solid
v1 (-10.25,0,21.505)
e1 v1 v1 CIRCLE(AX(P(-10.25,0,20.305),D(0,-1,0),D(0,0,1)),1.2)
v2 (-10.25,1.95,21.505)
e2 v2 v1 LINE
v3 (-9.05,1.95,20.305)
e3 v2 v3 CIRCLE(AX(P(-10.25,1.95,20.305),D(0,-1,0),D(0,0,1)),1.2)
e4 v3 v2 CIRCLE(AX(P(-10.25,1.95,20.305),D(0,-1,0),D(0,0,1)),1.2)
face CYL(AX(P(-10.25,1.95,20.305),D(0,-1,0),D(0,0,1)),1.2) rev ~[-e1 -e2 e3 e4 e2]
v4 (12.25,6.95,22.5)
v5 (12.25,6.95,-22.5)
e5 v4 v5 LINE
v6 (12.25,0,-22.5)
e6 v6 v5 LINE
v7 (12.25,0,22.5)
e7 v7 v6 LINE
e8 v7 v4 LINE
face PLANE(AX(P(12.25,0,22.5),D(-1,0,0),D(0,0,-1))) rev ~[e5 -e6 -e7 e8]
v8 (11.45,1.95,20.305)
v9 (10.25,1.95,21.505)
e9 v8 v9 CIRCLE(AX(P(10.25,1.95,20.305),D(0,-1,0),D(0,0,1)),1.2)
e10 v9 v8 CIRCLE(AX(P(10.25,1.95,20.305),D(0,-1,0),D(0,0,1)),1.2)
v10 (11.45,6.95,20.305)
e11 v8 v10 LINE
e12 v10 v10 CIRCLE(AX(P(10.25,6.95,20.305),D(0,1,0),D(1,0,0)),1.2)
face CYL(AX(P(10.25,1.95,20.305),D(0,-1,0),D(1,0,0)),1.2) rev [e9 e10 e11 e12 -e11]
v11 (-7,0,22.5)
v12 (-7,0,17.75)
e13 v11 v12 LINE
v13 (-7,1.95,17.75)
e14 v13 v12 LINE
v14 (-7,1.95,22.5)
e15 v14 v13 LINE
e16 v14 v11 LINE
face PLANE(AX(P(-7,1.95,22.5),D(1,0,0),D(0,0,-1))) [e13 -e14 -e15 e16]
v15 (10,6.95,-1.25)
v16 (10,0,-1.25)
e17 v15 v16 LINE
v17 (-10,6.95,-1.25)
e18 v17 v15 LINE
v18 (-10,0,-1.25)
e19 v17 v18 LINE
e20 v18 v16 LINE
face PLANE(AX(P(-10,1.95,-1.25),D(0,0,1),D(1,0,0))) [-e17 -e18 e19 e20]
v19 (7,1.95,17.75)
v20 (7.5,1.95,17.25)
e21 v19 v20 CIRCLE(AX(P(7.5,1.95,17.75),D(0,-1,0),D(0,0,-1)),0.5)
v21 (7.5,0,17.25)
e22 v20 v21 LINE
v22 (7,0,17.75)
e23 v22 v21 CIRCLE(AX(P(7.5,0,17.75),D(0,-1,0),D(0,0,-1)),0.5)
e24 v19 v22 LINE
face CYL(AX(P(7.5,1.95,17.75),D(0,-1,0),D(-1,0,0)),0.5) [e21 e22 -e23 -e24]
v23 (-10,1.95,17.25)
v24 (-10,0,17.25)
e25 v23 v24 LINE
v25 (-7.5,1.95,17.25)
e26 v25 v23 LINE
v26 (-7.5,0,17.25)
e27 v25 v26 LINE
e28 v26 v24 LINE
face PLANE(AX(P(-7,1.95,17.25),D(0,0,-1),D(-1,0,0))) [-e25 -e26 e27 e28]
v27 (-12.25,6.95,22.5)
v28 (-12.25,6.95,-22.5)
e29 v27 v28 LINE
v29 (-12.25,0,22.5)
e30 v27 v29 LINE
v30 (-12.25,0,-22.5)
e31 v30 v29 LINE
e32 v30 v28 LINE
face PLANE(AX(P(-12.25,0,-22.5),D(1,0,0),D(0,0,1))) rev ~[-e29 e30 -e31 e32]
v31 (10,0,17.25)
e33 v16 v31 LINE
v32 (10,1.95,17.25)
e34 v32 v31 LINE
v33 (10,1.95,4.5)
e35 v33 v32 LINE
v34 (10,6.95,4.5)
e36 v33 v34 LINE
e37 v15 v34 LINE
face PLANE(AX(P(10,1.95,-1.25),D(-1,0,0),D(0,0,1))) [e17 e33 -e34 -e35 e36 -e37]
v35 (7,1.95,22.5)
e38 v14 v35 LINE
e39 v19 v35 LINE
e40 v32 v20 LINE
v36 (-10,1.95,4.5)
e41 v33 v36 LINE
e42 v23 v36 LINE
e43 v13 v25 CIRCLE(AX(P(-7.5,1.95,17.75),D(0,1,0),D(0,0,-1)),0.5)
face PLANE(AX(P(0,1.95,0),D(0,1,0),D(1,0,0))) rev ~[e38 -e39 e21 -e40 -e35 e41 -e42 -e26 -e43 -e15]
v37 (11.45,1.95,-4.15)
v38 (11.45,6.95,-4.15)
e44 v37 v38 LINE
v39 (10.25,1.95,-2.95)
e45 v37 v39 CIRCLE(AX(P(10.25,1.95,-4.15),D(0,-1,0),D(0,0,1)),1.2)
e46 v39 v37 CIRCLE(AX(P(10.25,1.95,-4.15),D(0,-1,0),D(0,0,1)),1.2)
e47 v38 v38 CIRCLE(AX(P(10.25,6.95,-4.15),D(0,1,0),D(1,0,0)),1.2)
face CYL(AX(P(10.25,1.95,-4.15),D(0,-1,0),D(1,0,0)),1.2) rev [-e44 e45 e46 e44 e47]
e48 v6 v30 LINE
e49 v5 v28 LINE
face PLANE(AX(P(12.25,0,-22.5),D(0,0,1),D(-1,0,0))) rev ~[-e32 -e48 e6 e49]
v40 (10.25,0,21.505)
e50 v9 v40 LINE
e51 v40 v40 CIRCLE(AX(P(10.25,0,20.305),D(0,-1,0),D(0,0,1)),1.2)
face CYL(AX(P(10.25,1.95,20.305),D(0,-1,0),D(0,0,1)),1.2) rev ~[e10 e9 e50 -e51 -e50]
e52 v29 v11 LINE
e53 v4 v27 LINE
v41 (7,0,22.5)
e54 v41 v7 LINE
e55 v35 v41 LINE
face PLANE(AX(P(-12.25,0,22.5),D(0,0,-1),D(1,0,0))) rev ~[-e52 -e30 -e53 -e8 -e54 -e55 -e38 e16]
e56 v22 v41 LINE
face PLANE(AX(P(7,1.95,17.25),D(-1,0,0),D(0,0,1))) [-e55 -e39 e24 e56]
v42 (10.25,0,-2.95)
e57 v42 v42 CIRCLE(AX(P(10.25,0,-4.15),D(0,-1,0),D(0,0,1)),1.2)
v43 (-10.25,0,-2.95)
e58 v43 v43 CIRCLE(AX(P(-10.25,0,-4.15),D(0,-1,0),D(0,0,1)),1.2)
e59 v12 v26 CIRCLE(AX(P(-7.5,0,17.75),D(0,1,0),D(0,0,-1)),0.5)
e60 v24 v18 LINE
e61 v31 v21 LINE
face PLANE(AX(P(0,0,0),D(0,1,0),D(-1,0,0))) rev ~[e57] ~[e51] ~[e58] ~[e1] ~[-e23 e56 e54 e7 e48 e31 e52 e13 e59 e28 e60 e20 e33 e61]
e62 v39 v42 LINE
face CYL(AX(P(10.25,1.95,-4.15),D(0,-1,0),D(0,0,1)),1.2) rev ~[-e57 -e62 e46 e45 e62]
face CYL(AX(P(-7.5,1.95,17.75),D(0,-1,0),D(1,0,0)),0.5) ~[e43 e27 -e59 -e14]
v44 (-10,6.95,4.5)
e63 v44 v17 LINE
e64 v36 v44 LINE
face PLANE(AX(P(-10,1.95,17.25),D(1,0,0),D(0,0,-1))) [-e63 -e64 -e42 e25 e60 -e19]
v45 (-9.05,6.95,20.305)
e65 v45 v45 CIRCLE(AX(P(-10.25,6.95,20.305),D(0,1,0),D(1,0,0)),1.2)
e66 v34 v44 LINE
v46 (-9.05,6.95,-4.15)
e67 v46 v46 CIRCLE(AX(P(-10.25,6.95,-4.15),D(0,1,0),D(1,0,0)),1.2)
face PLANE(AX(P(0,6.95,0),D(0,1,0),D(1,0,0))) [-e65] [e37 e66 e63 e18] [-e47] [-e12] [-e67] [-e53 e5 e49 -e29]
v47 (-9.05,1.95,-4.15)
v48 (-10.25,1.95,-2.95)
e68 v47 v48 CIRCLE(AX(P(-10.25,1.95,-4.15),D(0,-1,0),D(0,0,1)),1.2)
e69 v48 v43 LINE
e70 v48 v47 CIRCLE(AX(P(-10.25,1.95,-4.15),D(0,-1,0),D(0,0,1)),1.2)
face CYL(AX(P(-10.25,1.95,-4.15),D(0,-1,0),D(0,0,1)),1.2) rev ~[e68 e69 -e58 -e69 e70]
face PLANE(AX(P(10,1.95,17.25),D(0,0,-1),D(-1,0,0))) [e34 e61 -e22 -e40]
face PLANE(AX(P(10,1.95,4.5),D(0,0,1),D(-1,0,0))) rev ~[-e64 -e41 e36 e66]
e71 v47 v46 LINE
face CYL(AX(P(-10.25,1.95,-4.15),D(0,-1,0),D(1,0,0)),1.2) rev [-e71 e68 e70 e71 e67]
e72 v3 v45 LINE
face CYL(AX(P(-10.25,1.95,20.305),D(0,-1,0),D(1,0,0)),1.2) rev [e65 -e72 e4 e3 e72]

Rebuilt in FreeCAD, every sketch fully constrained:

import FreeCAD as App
import Part
import Sketcher
from FreeCAD import Vector
Q = App.Units.Quantity


def edges_at(feature, points):
    """Names of the edges that pass closest to the given points."""
    edges = feature.Shape.Edges
    near = lambda p: min(range(len(edges)), key=lambda i: edges[i].distToShape(Part.Vertex(*p))[0])
    return sorted({f"Edge{near(p) + 1}" for p in points})


def add_polygon(sketch, points):
    """Adds a closed chain of lines whose ends are joined by coincident constraints."""
    first, n = sketch.GeometryCount, len(points)
    for a, b in zip(points, points[1:] + points[:1]):
        sketch.addGeometry(Part.LineSegment(App.Vector(*a, 0), App.Vector(*b, 0)), False)
    for i in range(n):
        sketch.addConstraint(Sketcher.Constraint("Coincident", first + i, 2, first + (i + 1) % n, 1))

doc = App.newDocument("Part")
body = doc.addObject("PartDesign::Body", "Body")

# Sketch on XZ plane
sketch1 = body.newObject("Sketcher::SketchObject", "Sketch")
sketch1.AttachmentSupport = (doc.getObject("XZ_Plane"), [""])
sketch1.MapMode = "FlatFace"
add_polygon(sketch1, [(-12.25, -22.5), (-12.25, 22.5), (12.25, 22.5), (12.25, -22.5)])  # lines 0-3
sketch1.addConstraint(Sketcher.Constraint("Vertical", 0))
sketch1.addConstraint(Sketcher.Constraint("Horizontal", 1))
sketch1.addConstraint(Sketcher.Constraint("Vertical", 2))
sketch1.addConstraint(Sketcher.Constraint("Horizontal", 3))
sketch1.addConstraint(Sketcher.Constraint("Symmetric", 0, 2, 2, 2, -1, 1))
sketch1.addConstraint(Sketcher.Constraint("DistanceY", 0, 1, 0, 2, Q("45 mm")))
sketch1.addConstraint(Sketcher.Constraint("DistanceX", 1, 1, 1, 2, Q("24.5 mm")))
pad1 = body.newObject("PartDesign::Pad", "Pad")
pad1.Profile = sketch1
pad1.Length = 1.95
pad1.Reversed = True

# Sketch on XZ plane
sketch2 = body.newObject("Sketcher::SketchObject", "Sketch001")
sketch2.AttachmentSupport = (doc.getObject("XZ_Plane"), [""])
sketch2.MapMode = "FlatFace"
sketch2.AttachmentOffset = App.Placement(Vector(0, 0, -1.95), App.Rotation())
add_polygon(sketch2, [(10, -1.25), (-10, -1.25), (-10, 17.25), (-7, 17.25), (-7, 22.5), (7, 22.5), (7, 17.25), (10, 17.25)])  # lines 0-7
sketch2.addConstraint(Sketcher.Constraint("Horizontal", 0))
sketch2.addConstraint(Sketcher.Constraint("Vertical", 1))
sketch2.addConstraint(Sketcher.Constraint("Horizontal", 2))
sketch2.addConstraint(Sketcher.Constraint("Vertical", 3))
sketch2.addConstraint(Sketcher.Constraint("Horizontal", 4))
sketch2.addConstraint(Sketcher.Constraint("Vertical", 5))
sketch2.addConstraint(Sketcher.Constraint("Horizontal", 6))
sketch2.addConstraint(Sketcher.Constraint("Vertical", 7))
sketch2.addConstraint(Sketcher.Constraint("Symmetric", 2, 2, 5, 2, -2))
sketch2.addConstraint(Sketcher.Constraint("Equal", 2, 6))
sketch2.addConstraint(Sketcher.Constraint("DistanceX", 0, 2, 0, 1, Q("20 mm")))
sketch2.addConstraint(Sketcher.Constraint("DistanceX", 4, 1, 4, 2, Q("14 mm")))
sketch2.addConstraint(Sketcher.Constraint("DistanceY", 1, 1, 1, 2, Q("18.5 mm")))
sketch2.addConstraint(Sketcher.Constraint("DistanceY", 3, 1, 3, 2, Q("5.25 mm")))
sketch2.addConstraint(Sketcher.Constraint("DistanceY", -1, 1, 3, 2, Q("22.5 mm")))
pocket1 = body.newObject("PartDesign::Pocket", "Pocket")
pocket1.Profile = sketch2
pocket1.Length = 1.95
pocket1.Reversed = True

# Sketch on XZ plane
sketch3 = body.newObject("Sketcher::SketchObject", "Sketch002")
sketch3.AttachmentSupport = (doc.getObject("XZ_Plane"), [""])
sketch3.MapMode = "FlatFace"
sketch3.AttachmentOffset = App.Placement(Vector(0, 0, -1.95), App.Rotation())
sketch3.addGeometry(Part.Circle(Vector(-10.25, 20.305, 0), Vector(0, 0, 1), 1.2), False)
sketch3.addGeometry(Part.Circle(Vector(10.25, 20.305, 0), Vector(0, 0, 1), 1.2), False)
sketch3.addConstraint(Sketcher.Constraint("Equal", 0, 1))
sketch3.addConstraint(Sketcher.Constraint("Symmetric", 0, 3, 1, 3, -2))
sketch3.addConstraint(Sketcher.Constraint("Diameter", 0, Q("2.4 mm")))
sketch3.addConstraint(Sketcher.Constraint("DistanceX", 0, 3, 1, 3, Q("20.5 mm")))
sketch3.addConstraint(Sketcher.Constraint("DistanceY", -1, 1, 0, 3, Q("20.305 mm")))
doc.recompute()
hole = body.newObject("PartDesign::Hole", "Hole")
hole.Profile = sketch3
hole.ThreadType = "None"
hole.Diameter = 2.4
hole.DepthType = "ThroughAll"
hole.Reversed = True

# Sketch on XZ plane
sketch4 = body.newObject("Sketcher::SketchObject", "Sketch003")
sketch4.AttachmentSupport = (doc.getObject("XZ_Plane"), [""])
sketch4.MapMode = "FlatFace"
sketch4.AttachmentOffset = App.Placement(Vector(0, 0, -1.95), App.Rotation())
sketch4.addGeometry(Part.Circle(Vector(-10.25, -4.15, 0), Vector(0, 0, 1), 1.2), False)
sketch4.addGeometry(Part.Circle(Vector(10.25, -4.15, 0), Vector(0, 0, 1), 1.2), False)
sketch4.addConstraint(Sketcher.Constraint("Equal", 0, 1))
sketch4.addConstraint(Sketcher.Constraint("Symmetric", 0, 3, 1, 3, -2))
sketch4.addConstraint(Sketcher.Constraint("Diameter", 0, Q("2.4 mm")))
sketch4.addConstraint(Sketcher.Constraint("DistanceX", 0, 3, 1, 3, Q("20.5 mm")))
sketch4.addConstraint(Sketcher.Constraint("DistanceY", 0, 3, -1, 1, Q("4.15 mm")))
doc.recompute()
hole2 = body.newObject("PartDesign::Hole", "Hole001")
hole2.Profile = sketch4
hole2.ThreadType = "None"
hole2.Diameter = 2.4
hole2.DepthType = "ThroughAll"
hole2.Reversed = True
doc.recompute()

fillet = body.newObject("PartDesign::Fillet", "Fillet")
fillet.Base = (hole2, edges_at(hole2, [(7, 0.975, 17.25), (-7, 0.975, 17.25)]))
fillet.Radius = 0.5

# Sketch on XZ plane
sketch5 = body.newObject("Sketcher::SketchObject", "Sketch004")
sketch5.AttachmentSupport = (doc.getObject("XZ_Plane"), [""])
sketch5.MapMode = "FlatFace"
sketch5.AttachmentOffset = App.Placement(Vector(0, 0, -1.95), App.Rotation())
add_polygon(sketch5, [(-12.25, 22.5), (12.25, 22.5), (12.25, -22.5), (-12.25, -22.5)])  # lines 0-3
sketch5.addGeometry(Part.Circle(Vector(-10.25, 20.305, 0), Vector(0, 0, 1), 1.2), False)  # 4
add_polygon(sketch5, [(10, 4.5), (-10, 4.5), (-10, -1.25), (10, -1.25)])  # lines 5-8
sketch5.addGeometry(Part.Circle(Vector(10.25, -4.15, 0), Vector(0, 0, 1), 1.2), False)  # 9
sketch5.addGeometry(Part.Circle(Vector(-10.25, -4.15, 0), Vector(0, 0, 1), 1.2), False)  # 10
sketch5.addGeometry(Part.Circle(Vector(10.25, 20.305, 0), Vector(0, 0, 1), 1.2), False)  # 11
sketch5.addConstraint(Sketcher.Constraint("Horizontal", 0))
sketch5.addConstraint(Sketcher.Constraint("Vertical", 1))
sketch5.addConstraint(Sketcher.Constraint("Horizontal", 2))
sketch5.addConstraint(Sketcher.Constraint("Vertical", 3))
sketch5.addConstraint(Sketcher.Constraint("Horizontal", 5))
sketch5.addConstraint(Sketcher.Constraint("Vertical", 6))
sketch5.addConstraint(Sketcher.Constraint("Horizontal", 7))
sketch5.addConstraint(Sketcher.Constraint("Vertical", 8))
sketch5.addConstraint(Sketcher.Constraint("Equal", 4, 9))
sketch5.addConstraint(Sketcher.Constraint("Equal", 9, 10))
sketch5.addConstraint(Sketcher.Constraint("Equal", 10, 11))
sketch5.addConstraint(Sketcher.Constraint("Symmetric", 0, 2, 2, 2, -1, 1))
sketch5.addConstraint(Sketcher.Constraint("Symmetric", 9, 3, 10, 3, -2))
sketch5.addConstraint(Sketcher.Constraint("Symmetric", 4, 3, 11, 3, -2))
sketch5.addConstraint(Sketcher.Constraint("Vertical", 4, 3, 10, 3))
sketch5.addConstraint(Sketcher.Constraint("DistanceY", 5, 2, 3, 2, Q("18 mm")))
sketch5.addConstraint(Sketcher.Constraint("Diameter", 4, Q("2.4 mm")))
sketch5.addConstraint(Sketcher.Constraint("DistanceX", 5, 2, 5, 1, Q("20 mm")))
sketch5.addConstraint(Sketcher.Constraint("DistanceY", 1, 2, 1, 1, Q("45 mm")))
sketch5.addConstraint(Sketcher.Constraint("DistanceX", 0, 1, 0, 2, Q("24.5 mm")))
sketch5.addConstraint(Sketcher.Constraint("DistanceX", 5, 2, -1, 1, Q("10 mm")))
sketch5.addConstraint(Sketcher.Constraint("DistanceX", 11, 3, 0, 2, Q("2 mm")))
sketch5.addConstraint(Sketcher.Constraint("DistanceY", 6, 2, 6, 1, Q("5.75 mm")))
sketch5.addConstraint(Sketcher.Constraint("DistanceY", 10, 3, 6, 2, Q("2.9 mm")))
sketch5.addConstraint(Sketcher.Constraint("DistanceY", -1, 1, 4, 3, Q("20.305 mm")))
pad2 = body.newObject("PartDesign::Pad", "Pad001")
pad2.Profile = sketch5
pad2.Length = 5
pad2.Reversed = True

doc.recompute()
